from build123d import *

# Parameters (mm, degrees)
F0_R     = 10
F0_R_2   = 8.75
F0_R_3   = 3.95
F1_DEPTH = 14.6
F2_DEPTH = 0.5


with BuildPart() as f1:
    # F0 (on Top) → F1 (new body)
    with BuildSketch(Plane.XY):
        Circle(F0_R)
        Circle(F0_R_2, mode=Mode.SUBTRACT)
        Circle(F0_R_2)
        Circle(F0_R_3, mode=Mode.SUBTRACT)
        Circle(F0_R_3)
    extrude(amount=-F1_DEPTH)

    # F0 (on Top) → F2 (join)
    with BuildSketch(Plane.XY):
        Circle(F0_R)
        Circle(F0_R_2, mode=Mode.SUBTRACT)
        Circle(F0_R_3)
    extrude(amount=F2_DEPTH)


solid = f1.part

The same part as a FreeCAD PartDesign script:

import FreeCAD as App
import Part
import Sketcher
Q = App.Units.Quantity

doc = App.newDocument("Part")
body = doc.addObject("PartDesign::Body", "Body")

# Sketch on XY plane
sketch1 = doc.addObject("Sketcher::SketchObject", "Sketch")
body.addObject(sketch1)
sketch1.AttachmentSupport = (doc.XY_Plane, [""])
sketch1.MapMode = "FlatFace"
sketch1.addGeometry(Part.Circle(App.Vector(0, 0, 0), App.Vector(0, 0, 1), 10), False)
sketch1.addConstraint([
    Sketcher.Constraint("Coincident", 0, 3, -1, 1),
    Sketcher.Constraint("Diameter", 0, Q("20 mm")),
])
pad1 = doc.addObject("PartDesign::Pad", "Pad")
body.addObject(pad1)
pad1.Profile = sketch1
pad1.Length = 14.6
pad1.Reversed = True

# Sketch on XY plane
sketch2 = doc.addObject("Sketcher::SketchObject", "Sketch001")
body.addObject(sketch2)
sketch2.AttachmentSupport = (doc.XY_Plane, [""])
sketch2.MapMode = "FlatFace"
sketch2.addGeometry([
    Part.Circle(App.Vector(0, 0, 0), App.Vector(0, 0, 1), 10),
    Part.Circle(App.Vector(0, 0, 0), App.Vector(0, 0, 1), 8.8),
    Part.Circle(App.Vector(0, 0, 0), App.Vector(0, 0, 1), 4),
], False)
sketch2.addConstraint([
    Sketcher.Constraint("Coincident", 0, 3, -1, 1),
    Sketcher.Constraint("Coincident", 1, 3, -1, 1),
    Sketcher.Constraint("Coincident", 2, 3, -1, 1),
    Sketcher.Constraint("Diameter", 0, Q("20 mm")),
    Sketcher.Constraint("Diameter", 1, Q("17.5 mm")),
    Sketcher.Constraint("Diameter", 2, Q("7.9 mm")),
])
pad2 = doc.addObject("PartDesign::Pad", "Pad001")
body.addObject(pad2)
pad2.Profile = sketch2
pad2.Length = 0.5

doc.recompute()
